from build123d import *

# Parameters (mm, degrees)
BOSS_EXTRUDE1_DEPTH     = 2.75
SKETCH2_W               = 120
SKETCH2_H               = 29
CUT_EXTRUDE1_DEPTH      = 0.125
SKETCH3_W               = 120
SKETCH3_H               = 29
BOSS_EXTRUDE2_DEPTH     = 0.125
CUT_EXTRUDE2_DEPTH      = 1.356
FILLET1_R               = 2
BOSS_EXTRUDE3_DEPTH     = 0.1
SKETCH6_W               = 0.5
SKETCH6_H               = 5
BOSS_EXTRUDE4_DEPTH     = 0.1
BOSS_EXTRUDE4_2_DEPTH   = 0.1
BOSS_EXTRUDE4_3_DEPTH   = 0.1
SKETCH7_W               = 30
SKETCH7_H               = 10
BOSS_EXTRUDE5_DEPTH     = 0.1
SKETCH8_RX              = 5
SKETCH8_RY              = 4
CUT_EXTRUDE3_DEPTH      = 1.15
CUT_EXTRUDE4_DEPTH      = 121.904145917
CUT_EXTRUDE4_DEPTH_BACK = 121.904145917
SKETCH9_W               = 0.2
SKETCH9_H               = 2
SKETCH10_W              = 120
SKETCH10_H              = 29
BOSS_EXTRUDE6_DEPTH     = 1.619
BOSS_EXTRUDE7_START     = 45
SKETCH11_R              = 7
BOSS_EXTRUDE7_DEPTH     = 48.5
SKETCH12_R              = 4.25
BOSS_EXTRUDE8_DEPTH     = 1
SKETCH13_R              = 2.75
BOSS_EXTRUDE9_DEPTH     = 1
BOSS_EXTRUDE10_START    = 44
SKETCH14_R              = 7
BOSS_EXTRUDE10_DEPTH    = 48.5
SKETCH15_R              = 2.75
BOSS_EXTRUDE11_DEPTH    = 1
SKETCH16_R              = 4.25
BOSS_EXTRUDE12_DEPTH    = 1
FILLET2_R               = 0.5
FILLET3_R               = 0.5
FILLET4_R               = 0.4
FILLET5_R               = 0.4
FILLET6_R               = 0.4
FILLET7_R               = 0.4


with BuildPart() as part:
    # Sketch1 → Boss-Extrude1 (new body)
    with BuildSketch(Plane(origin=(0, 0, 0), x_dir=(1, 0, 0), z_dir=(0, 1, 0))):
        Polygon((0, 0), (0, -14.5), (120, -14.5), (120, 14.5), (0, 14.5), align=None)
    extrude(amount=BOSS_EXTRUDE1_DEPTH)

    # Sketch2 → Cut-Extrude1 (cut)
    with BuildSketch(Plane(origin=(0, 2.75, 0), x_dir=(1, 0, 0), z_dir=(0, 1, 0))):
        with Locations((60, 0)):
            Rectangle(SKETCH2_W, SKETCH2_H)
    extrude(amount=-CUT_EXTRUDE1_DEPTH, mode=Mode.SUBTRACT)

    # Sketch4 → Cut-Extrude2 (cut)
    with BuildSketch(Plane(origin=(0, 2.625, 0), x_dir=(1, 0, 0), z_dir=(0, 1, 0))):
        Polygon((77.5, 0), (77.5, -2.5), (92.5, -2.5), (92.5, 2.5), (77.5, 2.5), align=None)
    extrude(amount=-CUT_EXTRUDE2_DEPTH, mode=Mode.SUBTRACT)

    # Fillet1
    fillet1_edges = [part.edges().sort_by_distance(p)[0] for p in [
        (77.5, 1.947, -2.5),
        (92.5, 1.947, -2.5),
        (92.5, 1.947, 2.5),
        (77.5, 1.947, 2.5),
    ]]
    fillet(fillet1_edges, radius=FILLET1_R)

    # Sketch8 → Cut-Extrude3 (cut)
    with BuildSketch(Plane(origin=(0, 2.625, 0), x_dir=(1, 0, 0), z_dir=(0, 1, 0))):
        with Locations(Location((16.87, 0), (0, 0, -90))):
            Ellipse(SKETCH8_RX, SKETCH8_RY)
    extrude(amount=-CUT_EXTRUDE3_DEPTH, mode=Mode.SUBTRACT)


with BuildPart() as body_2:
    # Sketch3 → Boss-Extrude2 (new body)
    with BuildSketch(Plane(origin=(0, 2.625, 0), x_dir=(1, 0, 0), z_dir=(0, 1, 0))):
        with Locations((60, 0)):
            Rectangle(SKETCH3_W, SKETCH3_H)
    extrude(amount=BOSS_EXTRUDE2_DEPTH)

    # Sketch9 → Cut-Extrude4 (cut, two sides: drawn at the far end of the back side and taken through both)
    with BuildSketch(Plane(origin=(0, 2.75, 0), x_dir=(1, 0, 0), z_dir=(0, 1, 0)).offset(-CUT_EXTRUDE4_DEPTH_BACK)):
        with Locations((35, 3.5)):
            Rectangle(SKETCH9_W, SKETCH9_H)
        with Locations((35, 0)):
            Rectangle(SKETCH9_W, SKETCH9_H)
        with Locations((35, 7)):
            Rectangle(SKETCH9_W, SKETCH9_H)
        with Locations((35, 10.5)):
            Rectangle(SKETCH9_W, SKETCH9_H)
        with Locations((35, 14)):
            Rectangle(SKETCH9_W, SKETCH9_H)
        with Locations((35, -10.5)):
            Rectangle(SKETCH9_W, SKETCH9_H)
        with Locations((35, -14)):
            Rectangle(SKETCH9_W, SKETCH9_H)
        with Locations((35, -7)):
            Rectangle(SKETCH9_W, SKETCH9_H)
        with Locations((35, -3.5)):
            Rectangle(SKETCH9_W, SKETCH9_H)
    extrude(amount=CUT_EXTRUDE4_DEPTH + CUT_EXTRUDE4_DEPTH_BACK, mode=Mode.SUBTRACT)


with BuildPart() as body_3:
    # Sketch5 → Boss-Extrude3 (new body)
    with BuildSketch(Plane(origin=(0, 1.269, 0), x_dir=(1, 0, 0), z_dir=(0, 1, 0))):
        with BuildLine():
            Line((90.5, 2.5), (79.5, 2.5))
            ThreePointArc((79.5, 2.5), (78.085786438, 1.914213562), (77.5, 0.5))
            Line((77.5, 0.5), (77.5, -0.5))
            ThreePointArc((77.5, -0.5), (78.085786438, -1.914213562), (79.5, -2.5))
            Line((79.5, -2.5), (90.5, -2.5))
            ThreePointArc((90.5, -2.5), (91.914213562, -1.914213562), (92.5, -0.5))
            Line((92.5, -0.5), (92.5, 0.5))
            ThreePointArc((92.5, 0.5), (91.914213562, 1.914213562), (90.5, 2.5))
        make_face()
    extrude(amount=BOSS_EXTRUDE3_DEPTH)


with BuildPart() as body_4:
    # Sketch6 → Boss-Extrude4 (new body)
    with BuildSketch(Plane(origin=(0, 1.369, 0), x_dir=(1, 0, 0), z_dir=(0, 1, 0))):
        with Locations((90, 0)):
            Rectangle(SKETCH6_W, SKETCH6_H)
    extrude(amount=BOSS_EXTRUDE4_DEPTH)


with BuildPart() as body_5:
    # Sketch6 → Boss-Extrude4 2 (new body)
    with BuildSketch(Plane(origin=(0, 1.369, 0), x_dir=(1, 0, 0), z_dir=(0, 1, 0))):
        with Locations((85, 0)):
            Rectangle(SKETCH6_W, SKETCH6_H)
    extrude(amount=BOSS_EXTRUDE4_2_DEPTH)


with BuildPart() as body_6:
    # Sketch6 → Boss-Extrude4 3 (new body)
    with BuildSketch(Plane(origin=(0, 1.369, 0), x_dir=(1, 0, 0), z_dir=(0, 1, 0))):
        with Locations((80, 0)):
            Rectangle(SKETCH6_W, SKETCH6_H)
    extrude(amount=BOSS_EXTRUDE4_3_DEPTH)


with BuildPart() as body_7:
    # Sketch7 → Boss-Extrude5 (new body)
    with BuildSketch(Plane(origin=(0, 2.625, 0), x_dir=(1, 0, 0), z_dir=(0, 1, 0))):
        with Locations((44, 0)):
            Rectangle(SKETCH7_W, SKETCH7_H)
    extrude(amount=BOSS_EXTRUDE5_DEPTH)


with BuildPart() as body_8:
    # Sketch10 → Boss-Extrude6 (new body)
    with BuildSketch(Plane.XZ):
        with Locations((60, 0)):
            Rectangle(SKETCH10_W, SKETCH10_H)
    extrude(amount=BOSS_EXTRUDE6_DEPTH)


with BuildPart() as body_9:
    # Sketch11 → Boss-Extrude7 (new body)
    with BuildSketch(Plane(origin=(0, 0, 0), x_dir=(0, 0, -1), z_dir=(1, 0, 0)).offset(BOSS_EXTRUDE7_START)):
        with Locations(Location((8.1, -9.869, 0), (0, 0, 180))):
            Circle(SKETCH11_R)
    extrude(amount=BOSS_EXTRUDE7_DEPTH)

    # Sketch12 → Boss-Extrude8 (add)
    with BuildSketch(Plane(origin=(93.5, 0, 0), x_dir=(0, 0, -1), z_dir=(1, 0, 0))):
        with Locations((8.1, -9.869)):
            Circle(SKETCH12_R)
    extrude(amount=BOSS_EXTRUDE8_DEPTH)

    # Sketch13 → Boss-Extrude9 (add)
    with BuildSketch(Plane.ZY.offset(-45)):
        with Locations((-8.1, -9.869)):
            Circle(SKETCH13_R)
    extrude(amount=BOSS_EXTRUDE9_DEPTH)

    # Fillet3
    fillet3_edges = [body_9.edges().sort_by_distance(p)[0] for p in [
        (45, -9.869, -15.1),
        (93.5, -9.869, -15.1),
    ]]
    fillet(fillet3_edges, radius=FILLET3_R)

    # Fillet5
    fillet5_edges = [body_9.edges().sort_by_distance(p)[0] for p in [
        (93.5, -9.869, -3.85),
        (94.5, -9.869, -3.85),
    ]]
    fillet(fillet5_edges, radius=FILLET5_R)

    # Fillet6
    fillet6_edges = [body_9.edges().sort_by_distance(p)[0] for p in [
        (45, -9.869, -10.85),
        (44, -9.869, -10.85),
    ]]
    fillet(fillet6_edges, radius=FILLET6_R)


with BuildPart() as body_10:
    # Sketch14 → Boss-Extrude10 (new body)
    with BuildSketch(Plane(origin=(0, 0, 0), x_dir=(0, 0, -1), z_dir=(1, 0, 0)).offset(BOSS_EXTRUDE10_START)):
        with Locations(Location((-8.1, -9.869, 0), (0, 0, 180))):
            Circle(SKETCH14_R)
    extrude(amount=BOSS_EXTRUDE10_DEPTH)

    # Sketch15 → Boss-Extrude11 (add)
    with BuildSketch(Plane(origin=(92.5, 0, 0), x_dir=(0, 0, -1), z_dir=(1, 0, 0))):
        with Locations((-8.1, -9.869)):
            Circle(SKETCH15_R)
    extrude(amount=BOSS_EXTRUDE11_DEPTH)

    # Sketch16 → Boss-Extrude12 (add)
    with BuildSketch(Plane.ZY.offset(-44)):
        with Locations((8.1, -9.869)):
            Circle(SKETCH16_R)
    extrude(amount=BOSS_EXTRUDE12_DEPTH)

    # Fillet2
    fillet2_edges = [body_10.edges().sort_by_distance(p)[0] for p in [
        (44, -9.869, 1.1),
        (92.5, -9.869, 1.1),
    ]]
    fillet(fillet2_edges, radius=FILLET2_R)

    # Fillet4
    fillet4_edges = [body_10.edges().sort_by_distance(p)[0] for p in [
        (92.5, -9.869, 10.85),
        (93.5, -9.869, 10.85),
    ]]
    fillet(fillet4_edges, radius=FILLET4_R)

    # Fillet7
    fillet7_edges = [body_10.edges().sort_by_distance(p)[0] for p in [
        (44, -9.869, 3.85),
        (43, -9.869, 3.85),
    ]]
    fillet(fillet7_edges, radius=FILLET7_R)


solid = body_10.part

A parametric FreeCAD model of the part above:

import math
import FreeCAD as App
import Part
import Sketcher
from FreeCAD import Vector
Q = App.Units.Quantity


def edges_at(feature, points):
    """Names of the edges that pass closest to the given points."""
    edges = feature.Shape.Edges
    near = lambda p: min(range(len(edges)), key=lambda i: edges[i].distToShape(Part.Vertex(*p))[0])
    return sorted({f"Edge{near(p) + 1}" for p in points})

doc = App.newDocument("Part")
body = doc.addObject("PartDesign::Body", "Body")

# Sketch on XZ plane
sketch1 = body.newObject("Sketcher::SketchObject", "Sketch")
sketch1.AttachmentSupport = (doc.getObject("XZ_Plane"), [""])
sketch1.MapMode = "FlatFace"
sketch1.addGeometry(Part.LineSegment(Vector(0, 14, 0), Vector(120, 14, 0)), False)
sketch1.addGeometry(Part.LineSegment(Vector(120, 14, 0), Vector(120, -14, 0)), False)
sketch1.addGeometry(Part.LineSegment(Vector(120, -14, 0), Vector(0, -14, 0)), False)
sketch1.addGeometry(Part.LineSegment(Vector(0, -14, 0), Vector(0, 14, 0)), False)
sketch1.addConstraint(Sketcher.Constraint("Coincident", 0, 2, 1, 1))
sketch1.addConstraint(Sketcher.Constraint("Coincident", 1, 2, 2, 1))
sketch1.addConstraint(Sketcher.Constraint("Coincident", 2, 2, 3, 1))
sketch1.addConstraint(Sketcher.Constraint("Coincident", 3, 2, 0, 1))
sketch1.addConstraint(Sketcher.Constraint("Horizontal", 0))
sketch1.addConstraint(Sketcher.Constraint("Vertical", 1))
sketch1.addConstraint(Sketcher.Constraint("Horizontal", 2))
sketch1.addConstraint(Sketcher.Constraint("Vertical", 3))
sketch1.addConstraint(Sketcher.Constraint("Symmetric", 2, 2, 3, 2, -1, 1))
sketch1.addConstraint(Sketcher.Constraint("DistanceX", 0, 1, 0, 2, Q("120 mm")))
sketch1.addConstraint(Sketcher.Constraint("DistanceY", 1, 2, 1, 1, Q("29 mm")))
pad1 = body.newObject("PartDesign::Pad", "Pad")
pad1.Profile = sketch1
pad1.Length = 2.75
pad1.Reversed = True

# Sketch on XZ plane
sketch2 = body.newObject("Sketcher::SketchObject", "Sketch001")
sketch2.AttachmentSupport = (doc.getObject("XZ_Plane"), [""])
sketch2.MapMode = "FlatFace"
sketch2.AttachmentOffset = App.Placement(Vector(0, 0, -2.75), App.Rotation())
sketch2.addGeometry(Part.LineSegment(Vector(0, -14, 0), Vector(0, 14, 0)), False)
sketch2.addGeometry(Part.LineSegment(Vector(0, 14, 0), Vector(120, 14, 0)), False)
sketch2.addGeometry(Part.LineSegment(Vector(120, 14, 0), Vector(120, -14, 0)), False)
sketch2.addGeometry(Part.LineSegment(Vector(120, -14, 0), Vector(0, -14, 0)), False)
sketch2.addConstraint(Sketcher.Constraint("Coincident", 0, 2, 1, 1))
sketch2.addConstraint(Sketcher.Constraint("Coincident", 1, 2, 2, 1))
sketch2.addConstraint(Sketcher.Constraint("Coincident", 2, 2, 3, 1))
sketch2.addConstraint(Sketcher.Constraint("Coincident", 3, 2, 0, 1))
sketch2.addConstraint(Sketcher.Constraint("Vertical", 0))
sketch2.addConstraint(Sketcher.Constraint("Horizontal", 1))
sketch2.addConstraint(Sketcher.Constraint("Vertical", 2))
sketch2.addConstraint(Sketcher.Constraint("Horizontal", 3))
sketch2.addConstraint(Sketcher.Constraint("Symmetric", 0, 2, 3, 2, -1, 1))
sketch2.addConstraint(Sketcher.Constraint("DistanceX", 1, 1, 1, 2, Q("120 mm")))
sketch2.addConstraint(Sketcher.Constraint("DistanceY", 0, 1, 0, 2, Q("29 mm")))
pocket1 = body.newObject("PartDesign::Pocket", "Pocket")
pocket1.Profile = sketch2
pocket1.Length = 0.125
pocket1.Reversed = True

# Sketch on XZ plane
sketch3 = body.newObject("Sketcher::SketchObject", "Sketch002")
sketch3.AttachmentSupport = (doc.getObject("XZ_Plane"), [""])
sketch3.MapMode = "FlatFace"
sketch3.AttachmentOffset = App.Placement(Vector(0, 0, -2.625), App.Rotation())
sketch3.addGeometry(Part.LineSegment(Vector(78, 2, 0), Vector(92, 2, 0)), False)
sketch3.addGeometry(Part.LineSegment(Vector(92, 2, 0), Vector(92, -2, 0)), False)
sketch3.addGeometry(Part.LineSegment(Vector(92, -2, 0), Vector(78, -2, 0)), False)
sketch3.addGeometry(Part.LineSegment(Vector(78, -2, 0), Vector(78, 2, 0)), False)
sketch3.addConstraint(Sketcher.Constraint("Coincident", 0, 2, 1, 1))
sketch3.addConstraint(Sketcher.Constraint("Coincident", 1, 2, 2, 1))
sketch3.addConstraint(Sketcher.Constraint("Coincident", 2, 2, 3, 1))
sketch3.addConstraint(Sketcher.Constraint("Coincident", 3, 2, 0, 1))
sketch3.addConstraint(Sketcher.Constraint("Horizontal", 0))
sketch3.addConstraint(Sketcher.Constraint("Vertical", 1))
sketch3.addConstraint(Sketcher.Constraint("Horizontal", 2))
sketch3.addConstraint(Sketcher.Constraint("Vertical", 3))
sketch3.addConstraint(Sketcher.Constraint("DistanceX", 0, 1, 0, 2, Q("15 mm")))
sketch3.addConstraint(Sketcher.Constraint("DistanceY", 1, 2, 1, 1, Q("5 mm")))
sketch3.addConstraint(Sketcher.Constraint("DistanceX", -1, 1, 0, 2, Q("92.5 mm")))
sketch3.addConstraint(Sketcher.Constraint("DistanceY", -1, 1, 0, 2, Q("2.5 mm")))
pocket2 = body.newObject("PartDesign::Pocket", "Pocket001")
pocket2.Profile = sketch3
pocket2.Length = 1.356
pocket2.Reversed = True
doc.recompute()

fillet = body.newObject("PartDesign::Fillet", "Fillet")
fillet.Base = (pocket2, edges_at(pocket2, [
    (77.5, 1.947, -2.5),
    (92.5, 1.947, -2.5),
    (92.5, 1.947, 2.5),
    (77.5, 1.947, 2.5),
]))
fillet.Radius = 2

# Sketch on XZ plane
sketch4 = body.newObject("Sketcher::SketchObject", "Sketch003")
sketch4.AttachmentSupport = (doc.getObject("XZ_Plane"), [""])
sketch4.MapMode = "FlatFace"
sketch4.AttachmentOffset = App.Placement(Vector(0, 0, -2.625), App.Rotation())
sketch4.addGeometry(Part.Ellipse(Vector(16.87, 5, 0), Vector(12.87, 0, 0), Vector(16.87, 0, 0)), False)
sketch4.addConstraint(Sketcher.Constraint("Block", 0))
pocket3 = body.newObject("PartDesign::Pocket", "Pocket002")
pocket3.Profile = sketch4
pocket3.Length = 1.15
pocket3.Reversed = True
body2 = doc.addObject("PartDesign::Body", "Body001")

# Sketch on XZ plane
sketch5 = body2.newObject("Sketcher::SketchObject", "Sketch004")
sketch5.AttachmentSupport = (doc.getObject("XZ_Plane001"), [""])
sketch5.MapMode = "FlatFace"
sketch5.AttachmentOffset = App.Placement(Vector(0, 0, -2.625), App.Rotation())
sketch5.addGeometry(Part.LineSegment(Vector(0, -14, 0), Vector(0, 14, 0)), False)
sketch5.addGeometry(Part.LineSegment(Vector(0, 14, 0), Vector(120, 14, 0)), False)
sketch5.addGeometry(Part.LineSegment(Vector(120, 14, 0), Vector(120, -14, 0)), False)
sketch5.addGeometry(Part.LineSegment(Vector(120, -14, 0), Vector(0, -14, 0)), False)
sketch5.addConstraint(Sketcher.Constraint("Coincident", 0, 2, 1, 1))
sketch5.addConstraint(Sketcher.Constraint("Coincident", 1, 2, 2, 1))
sketch5.addConstraint(Sketcher.Constraint("Coincident", 2, 2, 3, 1))
sketch5.addConstraint(Sketcher.Constraint("Coincident", 3, 2, 0, 1))
sketch5.addConstraint(Sketcher.Constraint("Vertical", 0))
sketch5.addConstraint(Sketcher.Constraint("Horizontal", 1))
sketch5.addConstraint(Sketcher.Constraint("Vertical", 2))
sketch5.addConstraint(Sketcher.Constraint("Horizontal", 3))
sketch5.addConstraint(Sketcher.Constraint("Symmetric", 0, 2, 3, 2, -1, 1))
sketch5.addConstraint(Sketcher.Constraint("DistanceX", 1, 1, 1, 2, Q("120 mm")))
sketch5.addConstraint(Sketcher.Constraint("DistanceY", 0, 1, 0, 2, Q("29 mm")))
pad2 = body2.newObject("PartDesign::Pad", "Pad001")
pad2.Profile = sketch5
pad2.Length = 0.125
pad2.Reversed = True

# Sketch on XZ plane
sketch6 = body2.newObject("Sketcher::SketchObject", "Sketch005")
sketch6.AttachmentSupport = (doc.getObject("XZ_Plane001"), [""])
sketch6.MapMode = "FlatFace"
sketch6.AttachmentOffset = App.Placement(Vector(0, 0, -2.75), App.Rotation())
sketch6.addGeometry(Part.LineSegment(Vector(34.9, -4.5, 0), Vector(34.9, -2.5, 0)), False)
sketch6.addGeometry(Part.LineSegment(Vector(34.9, -2.5, 0), Vector(35.1, -2.5, 0)), False)
sketch6.addGeometry(Part.LineSegment(Vector(35.1, -2.5, 0), Vector(35.1, -4.5, 0)), False)
sketch6.addGeometry(Part.LineSegment(Vector(35.1, -4.5, 0), Vector(34.9, -4.5, 0)), False)
sketch6.addGeometry(Part.LineSegment(Vector(34.9, -1, 0), Vector(34.9, 1, 0)), False)
sketch6.addGeometry(Part.LineSegment(Vector(34.9, 1, 0), Vector(35.1, 1, 0)), False)
sketch6.addGeometry(Part.LineSegment(Vector(35.1, 1, 0), Vector(35.1, -1, 0)), False)
sketch6.addGeometry(Part.LineSegment(Vector(35.1, -1, 0), Vector(34.9, -1, 0)), False)
sketch6.addGeometry(Part.LineSegment(Vector(34.9, -8, 0), Vector(34.9, -6, 0)), False)
sketch6.addGeometry(Part.LineSegment(Vector(34.9, -6, 0), Vector(35.1, -6, 0)), False)
sketch6.addGeometry(Part.LineSegment(Vector(35.1, -6, 0), Vector(35.1, -8, 0)), False)
sketch6.addGeometry(Part.LineSegment(Vector(35.1, -8, 0), Vector(34.9, -8, 0)), False)
sketch6.addGeometry(Part.LineSegment(Vector(34.9, -11.5, 0), Vector(34.9, -9.5, 0)), False)
sketch6.addGeometry(Part.LineSegment(Vector(34.9, -9.5, 0), Vector(35.1, -9.5, 0)), False)
sketch6.addGeometry(Part.LineSegment(Vector(35.1, -9.5, 0), Vector(35.1, -11.5, 0)), False)
sketch6.addGeometry(Part.LineSegment(Vector(35.1, -11.5, 0), Vector(34.9, -11.5, 0)), False)
sketch6.addGeometry(Part.LineSegment(Vector(34.9, -15, 0), Vector(34.9, -13, 0)), False)
sketch6.addGeometry(Part.LineSegment(Vector(34.9, -13, 0), Vector(35.1, -13, 0)), False)
sketch6.addGeometry(Part.LineSegment(Vector(35.1, -13, 0), Vector(35.1, -15, 0)), False)
sketch6.addGeometry(Part.LineSegment(Vector(35.1, -15, 0), Vector(34.9, -15, 0)), False)
sketch6.addGeometry(Part.LineSegment(Vector(34.9, 9.5, 0), Vector(34.9, 11.5, 0)), False)
sketch6.addGeometry(Part.LineSegment(Vector(34.9, 11.5, 0), Vector(35.1, 11.5, 0)), False)
sketch6.addGeometry(Part.LineSegment(Vector(35.1, 11.5, 0), Vector(35.1, 9.5, 0)), False)
sketch6.addGeometry(Part.LineSegment(Vector(35.1, 9.5, 0), Vector(34.9, 9.5, 0)), False)
sketch6.addGeometry(Part.LineSegment(Vector(34.9, 13, 0), Vector(34.9, 15, 0)), False)
sketch6.addGeometry(Part.LineSegment(Vector(34.9, 15, 0), Vector(35.1, 15, 0)), False)
sketch6.addGeometry(Part.LineSegment(Vector(35.1, 15, 0), Vector(35.1, 13, 0)), False)
sketch6.addGeometry(Part.LineSegment(Vector(35.1, 13, 0), Vector(34.9, 13, 0)), False)
sketch6.addGeometry(Part.LineSegment(Vector(34.9, 6, 0), Vector(34.9, 8, 0)), False)
sketch6.addGeometry(Part.LineSegment(Vector(34.9, 8, 0), Vector(35.1, 8, 0)), False)
sketch6.addGeometry(Part.LineSegment(Vector(35.1, 8, 0), Vector(35.1, 6, 0)), False)
sketch6.addGeometry(Part.LineSegment(Vector(35.1, 6, 0), Vector(34.9, 6, 0)), False)
sketch6.addGeometry(Part.LineSegment(Vector(34.9, 2.5, 0), Vector(34.9, 4.5, 0)), False)
sketch6.addGeometry(Part.LineSegment(Vector(34.9, 4.5, 0), Vector(35.1, 4.5, 0)), False)
sketch6.addGeometry(Part.LineSegment(Vector(35.1, 4.5, 0), Vector(35.1, 2.5, 0)), False)
sketch6.addGeometry(Part.LineSegment(Vector(35.1, 2.5, 0), Vector(34.9, 2.5, 0)), False)
sketch6.addConstraint(Sketcher.Constraint("Coincident", 0, 2, 1, 1))
sketch6.addConstraint(Sketcher.Constraint("Coincident", 1, 2, 2, 1))
sketch6.addConstraint(Sketcher.Constraint("Coincident", 2, 2, 3, 1))
sketch6.addConstraint(Sketcher.Constraint("Coincident", 3, 2, 0, 1))
sketch6.addConstraint(Sketcher.Constraint("Coincident", 4, 2, 5, 1))
sketch6.addConstraint(Sketcher.Constraint("Coincident", 5, 2, 6, 1))
sketch6.addConstraint(Sketcher.Constraint("Coincident", 6, 2, 7, 1))
sketch6.addConstraint(Sketcher.Constraint("Coincident", 7, 2, 4, 1))
sketch6.addConstraint(Sketcher.Constraint("Coincident", 8, 2, 9, 1))
sketch6.addConstraint(Sketcher.Constraint("Coincident", 9, 2, 10, 1))
sketch6.addConstraint(Sketcher.Constraint("Coincident", 10, 2, 11, 1))
sketch6.addConstraint(Sketcher.Constraint("Coincident", 11, 2, 8, 1))
sketch6.addConstraint(Sketcher.Constraint("Coincident", 12, 2, 13, 1))
sketch6.addConstraint(Sketcher.Constraint("Coincident", 13, 2, 14, 1))
sketch6.addConstraint(Sketcher.Constraint("Coincident", 14, 2, 15, 1))
sketch6.addConstraint(Sketcher.Constraint("Coincident", 15, 2, 12, 1))
sketch6.addConstraint(Sketcher.Constraint("Coincident", 16, 2, 17, 1))
sketch6.addConstraint(Sketcher.Constraint("Coincident", 17, 2, 18, 1))
sketch6.addConstraint(Sketcher.Constraint("Coincident", 18, 2, 19, 1))
sketch6.addConstraint(Sketcher.Constraint("Coincident", 19, 2, 16, 1))
sketch6.addConstraint(Sketcher.Constraint("Coincident", 20, 2, 21, 1))
sketch6.addConstraint(Sketcher.Constraint("Coincident", 21, 2, 22, 1))
sketch6.addConstraint(Sketcher.Constraint("Coincident", 22, 2, 23, 1))
sketch6.addConstraint(Sketcher.Constraint("Coincident", 23, 2, 20, 1))
sketch6.addConstraint(Sketcher.Constraint("Coincident", 24, 2, 25, 1))
sketch6.addConstraint(Sketcher.Constraint("Coincident", 25, 2, 26, 1))
sketch6.addConstraint(Sketcher.Constraint("Coincident", 26, 2, 27, 1))
sketch6.addConstraint(Sketcher.Constraint("Coincident", 27, 2, 24, 1))
sketch6.addConstraint(Sketcher.Constraint("Coincident", 28, 2, 29, 1))
sketch6.addConstraint(Sketcher.Constraint("Coincident", 29, 2, 30, 1))
sketch6.addConstraint(Sketcher.Constraint("Coincident", 30, 2, 31, 1))
sketch6.addConstraint(Sketcher.Constraint("Coincident", 31, 2, 28, 1))
sketch6.addConstraint(Sketcher.Constraint("Coincident", 32, 2, 33, 1))
sketch6.addConstraint(Sketcher.Constraint("Coincident", 33, 2, 34, 1))
sketch6.addConstraint(Sketcher.Constraint("Coincident", 34, 2, 35, 1))
sketch6.addConstraint(Sketcher.Constraint("Coincident", 35, 2, 32, 1))
sketch6.addConstraint(Sketcher.Constraint("Vertical", 0))
sketch6.addConstraint(Sketcher.Constraint("Horizontal", 1))
sketch6.addConstraint(Sketcher.Constraint("Vertical", 2))
sketch6.addConstraint(Sketcher.Constraint("Horizontal", 3))
sketch6.addConstraint(Sketcher.Constraint("Vertical", 4))
sketch6.addConstraint(Sketcher.Constraint("Horizontal", 5))
sketch6.addConstraint(Sketcher.Constraint("Vertical", 6))
sketch6.addConstraint(Sketcher.Constraint("Horizontal", 7))
sketch6.addConstraint(Sketcher.Constraint("Vertical", 8))
sketch6.addConstraint(Sketcher.Constraint("Horizontal", 9))
sketch6.addConstraint(Sketcher.Constraint("Vertical", 10))
sketch6.addConstraint(Sketcher.Constraint("Horizontal", 11))
sketch6.addConstraint(Sketcher.Constraint("Vertical", 12))
sketch6.addConstraint(Sketcher.Constraint("Horizontal", 13))
sketch6.addConstraint(Sketcher.Constraint("Vertical", 14))
sketch6.addConstraint(Sketcher.Constraint("Horizontal", 15))
sketch6.addConstraint(Sketcher.Constraint("Vertical", 16))
sketch6.addConstraint(Sketcher.Constraint("Horizontal", 17))
sketch6.addConstraint(Sketcher.Constraint("Vertical", 18))
sketch6.addConstraint(Sketcher.Constraint("Horizontal", 19))
sketch6.addConstraint(Sketcher.Constraint("Vertical", 20))
sketch6.addConstraint(Sketcher.Constraint("Horizontal", 21))
sketch6.addConstraint(Sketcher.Constraint("Vertical", 22))
sketch6.addConstraint(Sketcher.Constraint("Horizontal", 23))
sketch6.addConstraint(Sketcher.Constraint("Vertical", 24))
sketch6.addConstraint(Sketcher.Constraint("Horizontal", 25))
sketch6.addConstraint(Sketcher.Constraint("Vertical", 26))
sketch6.addConstraint(Sketcher.Constraint("Horizontal", 27))
sketch6.addConstraint(Sketcher.Constraint("Vertical", 28))
sketch6.addConstraint(Sketcher.Constraint("Horizontal", 29))
sketch6.addConstraint(Sketcher.Constraint("Vertical", 30))
sketch6.addConstraint(Sketcher.Constraint("Horizontal", 31))
sketch6.addConstraint(Sketcher.Constraint("Vertical", 32))
sketch6.addConstraint(Sketcher.Constraint("Horizontal", 33))
sketch6.addConstraint(Sketcher.Constraint("Vertical", 34))
sketch6.addConstraint(Sketcher.Constraint("Horizontal", 35))
sketch6.addConstraint(Sketcher.Constraint("Symmetric", 15, 2, 20, 2, -1))
sketch6.addConstraint(Sketcher.Constraint("Symmetric", 13, 2, 22, 2, -1))
sketch6.addConstraint(Sketcher.Constraint("Symmetric", 19, 2, 24, 2, -1))
sketch6.addConstraint(Sketcher.Constraint("Symmetric", 17, 2, 26, 2, -1))
sketch6.addConstraint(Sketcher.Constraint("Symmetric", 11, 2, 28, 2, -1))
sketch6.addConstraint(Sketcher.Constraint("Symmetric", 9, 2, 30, 2, -1))
sketch6.addConstraint(Sketcher.Constraint("Symmetric", 3, 2, 32, 2, -1))
sketch6.addConstraint(Sketcher.Constraint("Symmetric", 1, 2, 34, 2, -1))
sketch6.addConstraint(Sketcher.Constraint("Vertical", 3, 2, 4, 2))
sketch6.addConstraint(Sketcher.Constraint("Vertical", 2, 2, 5, 2))
sketch6.addConstraint(Sketcher.Constraint("Vertical", 7, 2, 8, 2))
sketch6.addConstraint(Sketcher.Constraint("Vertical", 6, 2, 9, 2))
sketch6.addConstraint(Sketcher.Constraint("Vertical", 11, 2, 12, 2))
sketch6.addConstraint(Sketcher.Constraint("Vertical", 10, 2, 13, 2))
sketch6.addConstraint(Sketcher.Constraint("Vertical", 15, 2, 16, 2))
sketch6.addConstraint(Sketcher.Constraint("Vertical", 14, 2, 17, 2))
sketch6.addConstraint(Sketcher.Constraint("Equal", 2, 4))
sketch6.addConstraint(Sketcher.Constraint("Equal", 6, 8))
sketch6.addConstraint(Sketcher.Constraint("Equal", 10, 12))
sketch6.addConstraint(Sketcher.Constraint("Equal", 14, 16))
sketch6.addConstraint(Sketcher.Constraint("DistanceY", 0, 1, 0, 2, Q("2 mm")))
sketch6.addConstraint(Sketcher.Constraint("DistanceX", 1, 1, 1, 2, Q("0.2 mm")))
sketch6.addConstraint(Sketcher.Constraint("DistanceY", -1, 1, 4, 2, Q("1 mm")))
sketch6.addConstraint(Sketcher.Constraint("DistanceY", 8, 2, -1, 1, Q("6 mm")))
sketch6.addConstraint(Sketcher.Constraint("DistanceY", 16, 2, -1, 1, Q("13 mm")))
sketch6.addConstraint(Sketcher.Constraint("DistanceY", 12, 2, 3, 2, Q("5 mm")))
sketch6.addConstraint(Sketcher.Constraint("DistanceY", 0, 2, 20, 2, Q("14 mm")))
sketch6.addConstraint(Sketcher.Constraint("DistanceX", -1, 1, 0, 2, Q("34.9 mm")))
pocket4 = body2.newObject("PartDesign::Pocket", "Pocket003")
pocket4.Profile = sketch6
pocket4.Type = "ThroughAll"
pocket4.Midplane = True
body3 = doc.addObject("PartDesign::Body", "Body002")

# Sketch on XZ plane
sketch7 = body3.newObject("Sketcher::SketchObject", "Sketch006")
sketch7.AttachmentSupport = (doc.getObject("XZ_Plane002"), [""])
sketch7.MapMode = "FlatFace"
sketch7.AttachmentOffset = App.Placement(Vector(0, 0, -1.269), App.Rotation())
sketch7.addGeometry(Part.LineSegment(Vector(90.5, -2.5, 0), Vector(79.5, -2.5, 0)), False)
sketch7.addGeometry(Part.ArcOfCircle(Part.Circle(Vector(79.5, -0.5, 0), Vector(0, 0, 1), 2), math.radians(-180), math.radians(-90)), False)
sketch7.addGeometry(Part.LineSegment(Vector(77.5, -0.5, 0), Vector(77.5, 0.5, 0)), False)
sketch7.addGeometry(Part.ArcOfCircle(Part.Circle(Vector(79.5, 0.5, 0), Vector(0, 0, 1), 2), math.radians(90), math.radians(180)), False)
sketch7.addGeometry(Part.LineSegment(Vector(79.5, 2.5, 0), Vector(90.5, 2.5, 0)), False)
sketch7.addGeometry(Part.ArcOfCircle(Part.Circle(Vector(90.5, 0.5, 0), Vector(0, 0, 1), 2), math.radians(0), math.radians(90)), False)
sketch7.addGeometry(Part.LineSegment(Vector(92.5, 0.5, 0), Vector(92.5, -0.5, 0)), False)
sketch7.addGeometry(Part.ArcOfCircle(Part.Circle(Vector(90.5, -0.5, 0), Vector(0, 0, 1), 2), math.radians(-90), math.radians(0)), False)
sketch7.addConstraint(Sketcher.Constraint("Tangent", 0, 2, 1, 2))
sketch7.addConstraint(Sketcher.Constraint("Tangent", 1, 1, 2, 1))
sketch7.addConstraint(Sketcher.Constraint("Tangent", 2, 2, 3, 2))
sketch7.addConstraint(Sketcher.Constraint("Tangent", 3, 1, 4, 1))
sketch7.addConstraint(Sketcher.Constraint("Tangent", 4, 2, 5, 2))
sketch7.addConstraint(Sketcher.Constraint("Tangent", 5, 1, 6, 1))
sketch7.addConstraint(Sketcher.Constraint("Tangent", 6, 2, 7, 2))
sketch7.addConstraint(Sketcher.Constraint("Tangent", 7, 1, 0, 1))
sketch7.addConstraint(Sketcher.Constraint("Horizontal", 0))
sketch7.addConstraint(Sketcher.Constraint("Vertical", 2))
sketch7.addConstraint(Sketcher.Constraint("Horizontal", 4))
sketch7.addConstraint(Sketcher.Constraint("Vertical", 6))
sketch7.addConstraint(Sketcher.Constraint("Equal", 1, 3))
sketch7.addConstraint(Sketcher.Constraint("Equal", 3, 5))
sketch7.addConstraint(Sketcher.Constraint("Equal", 5, 7))
sketch7.addConstraint(Sketcher.Constraint("Radius", 1, Q("2 mm")))
sketch7.addConstraint(Sketcher.Constraint("DistanceX", 0, 2, 0, 1, Q("11 mm")))
sketch7.addConstraint(Sketcher.Constraint("DistanceY", 2, 1, 2, 2, Q("1 mm")))
sketch7.addConstraint(Sketcher.Constraint("DistanceX", -1, 1, 1, 3, Q("79.5 mm")))
sketch7.addConstraint(Sketcher.Constraint("DistanceY", 1, 3, -1, 1, Q("0.5 mm")))
pad3 = body3.newObject("PartDesign::Pad", "Pad002")
pad3.Profile = sketch7
pad3.Length = 0.1
pad3.Reversed = True
body4 = doc.addObject("PartDesign::Body", "Body003")

# Sketch on XZ plane
sketch8 = body4.newObject("Sketcher::SketchObject", "Sketch007")
sketch8.AttachmentSupport = (doc.getObject("XZ_Plane003"), [""])
sketch8.MapMode = "FlatFace"
sketch8.AttachmentOffset = App.Placement(Vector(0, 0, -1.369), App.Rotation())
sketch8.addGeometry(Part.LineSegment(Vector(89.8, -2.5, 0), Vector(89.8, 2.5, 0)), False)
sketch8.addGeometry(Part.LineSegment(Vector(89.8, 2.5, 0), Vector(90.2, 2.5, 0)), False)
sketch8.addGeometry(Part.LineSegment(Vector(90.2, 2.5, 0), Vector(90.2, -2.5, 0)), False)
sketch8.addGeometry(Part.LineSegment(Vector(90.2, -2.5, 0), Vector(89.8, -2.5, 0)), False)
sketch8.addConstraint(Sketcher.Constraint("Coincident", 0, 2, 1, 1))
sketch8.addConstraint(Sketcher.Constraint("Coincident", 1, 2, 2, 1))
sketch8.addConstraint(Sketcher.Constraint("Coincident", 2, 2, 3, 1))
sketch8.addConstraint(Sketcher.Constraint("Coincident", 3, 2, 0, 1))
sketch8.addConstraint(Sketcher.Constraint("Vertical", 0))
sketch8.addConstraint(Sketcher.Constraint("Horizontal", 1))
sketch8.addConstraint(Sketcher.Constraint("Vertical", 2))
sketch8.addConstraint(Sketcher.Constraint("Horizontal", 3))
sketch8.addConstraint(Sketcher.Constraint("DistanceY", 0, 1, 0, 2, Q("5 mm")))
sketch8.addConstraint(Sketcher.Constraint("DistanceX", 1, 1, 1, 2, Q("0.5 mm")))
sketch8.addConstraint(Sketcher.Constraint("DistanceY", -1, 1, 0, 2, Q("2.5 mm")))
sketch8.addConstraint(Sketcher.Constraint("DistanceX", -1, 1, 0, 2, Q("89.75 mm")))
pad4 = body4.newObject("PartDesign::Pad", "Pad003")
pad4.Profile = sketch8
pad4.Length = 0.1
pad4.Reversed = True
body5 = doc.addObject("PartDesign::Body", "Body004")

# Sketch on XZ plane
sketch9 = body5.newObject("Sketcher::SketchObject", "Sketch008")
sketch9.AttachmentSupport = (doc.getObject("XZ_Plane004"), [""])
sketch9.MapMode = "FlatFace"
sketch9.AttachmentOffset = App.Placement(Vector(0, 0, -1.369), App.Rotation())
sketch9.addGeometry(Part.LineSegment(Vector(84.8, -2.5, 0), Vector(84.8, 2.5, 0)), False)
sketch9.addGeometry(Part.LineSegment(Vector(84.8, 2.5, 0), Vector(85.2, 2.5, 0)), False)
sketch9.addGeometry(Part.LineSegment(Vector(85.2, 2.5, 0), Vector(85.2, -2.5, 0)), False)
sketch9.addGeometry(Part.LineSegment(Vector(85.2, -2.5, 0), Vector(84.8, -2.5, 0)), False)
sketch9.addConstraint(Sketcher.Constraint("Coincident", 0, 2, 1, 1))
sketch9.addConstraint(Sketcher.Constraint("Coincident", 1, 2, 2, 1))
sketch9.addConstraint(Sketcher.Constraint("Coincident", 2, 2, 3, 1))
sketch9.addConstraint(Sketcher.Constraint("Coincident", 3, 2, 0, 1))
sketch9.addConstraint(Sketcher.Constraint("Vertical", 0))
sketch9.addConstraint(Sketcher.Constraint("Horizontal", 1))
sketch9.addConstraint(Sketcher.Constraint("Vertical", 2))
sketch9.addConstraint(Sketcher.Constraint("Horizontal", 3))
sketch9.addConstraint(Sketcher.Constraint("DistanceY", 0, 1, 0, 2, Q("5 mm")))
sketch9.addConstraint(Sketcher.Constraint("DistanceX", 1, 1, 1, 2, Q("0.5 mm")))
sketch9.addConstraint(Sketcher.Constraint("DistanceY", -1, 1, 0, 2, Q("2.5 mm")))
sketch9.addConstraint(Sketcher.Constraint("DistanceX", -1, 1, 0, 2, Q("84.75 mm")))
pad5 = body5.newObject("PartDesign::Pad", "Pad004")
pad5.Profile = sketch9
pad5.Length = 0.1
pad5.Reversed = True
body6 = doc.addObject("PartDesign::Body", "Body005")

# Sketch on XZ plane
sketch10 = body6.newObject("Sketcher::SketchObject", "Sketch009")
sketch10.AttachmentSupport = (doc.getObject("XZ_Plane005"), [""])
sketch10.MapMode = "FlatFace"
sketch10.AttachmentOffset = App.Placement(Vector(0, 0, -1.369), App.Rotation())
sketch10.addGeometry(Part.LineSegment(Vector(79.8, -2.5, 0), Vector(79.8, 2.5, 0)), False)
sketch10.addGeometry(Part.LineSegment(Vector(79.8, 2.5, 0), Vector(80.2, 2.5, 0)), False)
sketch10.addGeometry(Part.LineSegment(Vector(80.2, 2.5, 0), Vector(80.2, -2.5, 0)), False)
sketch10.addGeometry(Part.LineSegment(Vector(80.2, -2.5, 0), Vector(79.8, -2.5, 0)), False)
sketch10.addConstraint(Sketcher.Constraint("Coincident", 0, 2, 1, 1))
sketch10.addConstraint(Sketcher.Constraint("Coincident", 1, 2, 2, 1))
sketch10.addConstraint(Sketcher.Constraint("Coincident", 2, 2, 3, 1))
sketch10.addConstraint(Sketcher.Constraint("Coincident", 3, 2, 0, 1))
sketch10.addConstraint(Sketcher.Constraint("Vertical", 0))
sketch10.addConstraint(Sketcher.Constraint("Horizontal", 1))
sketch10.addConstraint(Sketcher.Constraint("Vertical", 2))
sketch10.addConstraint(Sketcher.Constraint("Horizontal", 3))
sketch10.addConstraint(Sketcher.Constraint("DistanceY", 0, 1, 0, 2, Q("5 mm")))
sketch10.addConstraint(Sketcher.Constraint("DistanceX", 1, 1, 1, 2, Q("0.5 mm")))
sketch10.addConstraint(Sketcher.Constraint("DistanceY", -1, 1, 0, 2, Q("2.5 mm")))
sketch10.addConstraint(Sketcher.Constraint("DistanceX", -1, 1, 0, 2, Q("79.75 mm")))
pad6 = body6.newObject("PartDesign::Pad", "Pad005")
pad6.Profile = sketch10
pad6.Length = 0.1
pad6.Reversed = True
body7 = doc.addObject("PartDesign::Body", "Body006")

# Sketch on XZ plane
sketch11 = body7.newObject("Sketcher::SketchObject", "Sketch010")
sketch11.AttachmentSupport = (doc.getObject("XZ_Plane006"), [""])
sketch11.MapMode = "FlatFace"
sketch11.AttachmentOffset = App.Placement(Vector(0, 0, -2.625), App.Rotation())
sketch11.addGeometry(Part.LineSegment(Vector(29, -5, 0), Vector(29, 5, 0)), False)
sketch11.addGeometry(Part.LineSegment(Vector(29, 5, 0), Vector(59, 5, 0)), False)
sketch11.addGeometry(Part.LineSegment(Vector(59, 5, 0), Vector(59, -5, 0)), False)
sketch11.addGeometry(Part.LineSegment(Vector(59, -5, 0), Vector(29, -5, 0)), False)
sketch11.addConstraint(Sketcher.Constraint("Coincident", 0, 2, 1, 1))
sketch11.addConstraint(Sketcher.Constraint("Coincident", 1, 2, 2, 1))
sketch11.addConstraint(Sketcher.Constraint("Coincident", 2, 2, 3, 1))
sketch11.addConstraint(Sketcher.Constraint("Coincident", 3, 2, 0, 1))
sketch11.addConstraint(Sketcher.Constraint("Vertical", 0))
sketch11.addConstraint(Sketcher.Constraint("Horizontal", 1))
sketch11.addConstraint(Sketcher.Constraint("Vertical", 2))
sketch11.addConstraint(Sketcher.Constraint("Horizontal", 3))
sketch11.addConstraint(Sketcher.Constraint("DistanceX", 1, 1, 1, 2, Q("30 mm")))
sketch11.addConstraint(Sketcher.Constraint("DistanceY", 0, 1, 0, 2, Q("10 mm")))
sketch11.addConstraint(Sketcher.Constraint("DistanceX", -1, 1, 0, 2, Q("29 mm")))
sketch11.addConstraint(Sketcher.Constraint("DistanceY", -1, 1, 0, 2, Q("5 mm")))
pad7 = body7.newObject("PartDesign::Pad", "Pad006")
pad7.Profile = sketch11
pad7.Length = 0.1
pad7.Reversed = True
body8 = doc.addObject("PartDesign::Body", "Body007")

# Sketch on XZ plane
sketch12 = body8.newObject("Sketcher::SketchObject", "Sketch011")
sketch12.AttachmentSupport = (doc.getObject("XZ_Plane007"), [""])
sketch12.MapMode = "FlatFace"
sketch12.addGeometry(Part.LineSegment(Vector(0, 14, 0), Vector(0, -14, 0)), False)
sketch12.addGeometry(Part.LineSegment(Vector(0, -14, 0), Vector(120, -14, 0)), False)
sketch12.addGeometry(Part.LineSegment(Vector(120, -14, 0), Vector(120, 14, 0)), False)
sketch12.addGeometry(Part.LineSegment(Vector(120, 14, 0), Vector(0, 14, 0)), False)
sketch12.addConstraint(Sketcher.Constraint("Coincident", 0, 2, 1, 1))
sketch12.addConstraint(Sketcher.Constraint("Coincident", 1, 2, 2, 1))
sketch12.addConstraint(Sketcher.Constraint("Coincident", 2, 2, 3, 1))
sketch12.addConstraint(Sketcher.Constraint("Coincident", 3, 2, 0, 1))
sketch12.addConstraint(Sketcher.Constraint("Vertical", 0))
sketch12.addConstraint(Sketcher.Constraint("Horizontal", 1))
sketch12.addConstraint(Sketcher.Constraint("Vertical", 2))
sketch12.addConstraint(Sketcher.Constraint("Horizontal", 3))
sketch12.addConstraint(Sketcher.Constraint("Symmetric", 0, 2, 3, 2, -1, 1))
sketch12.addConstraint(Sketcher.Constraint("DistanceX", 1, 1, 1, 2, Q("120 mm")))
sketch12.addConstraint(Sketcher.Constraint("DistanceY", 0, 2, 0, 1, Q("29 mm")))
pad8 = body8.newObject("PartDesign::Pad", "Pad007")
pad8.Profile = sketch12
pad8.Length = 1.619
body9 = doc.addObject("PartDesign::Body", "Body008")

# Sketch on YZ plane
sketch13 = body9.newObject("Sketcher::SketchObject", "Sketch012")
sketch13.AttachmentSupport = (doc.getObject("YZ_Plane008"), [""])
sketch13.MapMode = "FlatFace"
sketch13.AttachmentOffset = App.Placement(Vector(0, 0, 45), App.Rotation())
sketch13.addGeometry(Part.Circle(Vector(-10, -8, 0), Vector(0, 0, 1), 7), False)
sketch13.addConstraint(Sketcher.Constraint("Diameter", 0, Q("14 mm")))
sketch13.addConstraint(Sketcher.Constraint("DistanceY", 0, 3, -1, 1, Q("8.1 mm")))
sketch13.addConstraint(Sketcher.Constraint("DistanceX", 0, 3, -1, 1, Q("9.869 mm")))
pad9 = body9.newObject("PartDesign::Pad", "Pad008")
pad9.Profile = sketch13
pad9.Length = 48.5

# Sketch on YZ plane
sketch14 = body9.newObject("Sketcher::SketchObject", "Sketch013")
sketch14.AttachmentSupport = (doc.getObject("YZ_Plane008"), [""])
sketch14.MapMode = "FlatFace"
sketch14.AttachmentOffset = App.Placement(Vector(0, 0, 93.5), App.Rotation())
sketch14.addGeometry(Part.Circle(Vector(-9.9, -8.1, 0), Vector(0, 0, 1), 4.2), False)
sketch14.addConstraint(Sketcher.Constraint("Diameter", 0, Q("8.5 mm")))
sketch14.addConstraint(Sketcher.Constraint("DistanceY", 0, 3, -1, 1, Q("8.1 mm")))
sketch14.addConstraint(Sketcher.Constraint("DistanceX", 0, 3, -1, 1, Q("9.869 mm")))
pad10 = body9.newObject("PartDesign::Pad", "Pad009")
pad10.Profile = sketch14
pad10.Length = 1

# Sketch on YZ plane
sketch15 = body9.newObject("Sketcher::SketchObject", "Sketch014")
sketch15.AttachmentSupport = (doc.getObject("YZ_Plane008"), [""])
sketch15.MapMode = "FlatFace"
sketch15.AttachmentOffset = App.Placement(Vector(0, 0, 45), App.Rotation())
sketch15.addGeometry(Part.Circle(Vector(-9.9, -8.1, 0), Vector(0, 0, 1), 2.8), False)
sketch15.addConstraint(Sketcher.Constraint("Diameter", 0, Q("5.5 mm")))
sketch15.addConstraint(Sketcher.Constraint("DistanceY", 0, 3, -1, 1, Q("8.1 mm")))
sketch15.addConstraint(Sketcher.Constraint("DistanceX", 0, 3, -1, 1, Q("9.869 mm")))
pad11 = body9.newObject("PartDesign::Pad", "Pad010")
pad11.Profile = sketch15
pad11.Length = 1
pad11.Reversed = True
doc.recompute()

fillet2 = body9.newObject("PartDesign::Fillet", "Fillet001")
fillet2.Base = (pad11, edges_at(pad11, [(45, -9.869, -15.1), (93.5, -9.869, -15.1)]))
fillet2.Radius = 0.5
doc.recompute()

fillet3 = body9.newObject("PartDesign::Fillet", "Fillet002")
fillet3.Base = (fillet2, edges_at(fillet2, [(93.5, -9.869, -3.85), (94.5, -9.869, -3.85)]))
fillet3.Radius = 0.4
doc.recompute()

fillet4 = body9.newObject("PartDesign::Fillet", "Fillet003")
fillet4.Base = (fillet3, edges_at(fillet3, [(45, -9.869, -10.85), (44, -9.869, -10.85)]))
fillet4.Radius = 0.4
body10 = doc.addObject("PartDesign::Body", "Body009")

# Sketch on YZ plane
sketch16 = body10.newObject("Sketcher::SketchObject", "Sketch015")
sketch16.AttachmentSupport = (doc.getObject("YZ_Plane009"), [""])
sketch16.MapMode = "FlatFace"
sketch16.AttachmentOffset = App.Placement(Vector(0, 0, 44), App.Rotation())
sketch16.addGeometry(Part.Circle(Vector(-10, 8, 0), Vector(0, 0, 1), 7), False)
sketch16.addConstraint(Sketcher.Constraint("Diameter", 0, Q("14 mm")))
sketch16.addConstraint(Sketcher.Constraint("DistanceY", -1, 1, 0, 3, Q("8.1 mm")))
sketch16.addConstraint(Sketcher.Constraint("DistanceX", 0, 3, -1, 1, Q("9.869 mm")))
pad12 = body10.newObject("PartDesign::Pad", "Pad011")
pad12.Profile = sketch16
pad12.Length = 48.5

# Sketch on YZ plane
sketch17 = body10.newObject("Sketcher::SketchObject", "Sketch016")
sketch17.AttachmentSupport = (doc.getObject("YZ_Plane009"), [""])
sketch17.MapMode = "FlatFace"
sketch17.AttachmentOffset = App.Placement(Vector(0, 0, 92.5), App.Rotation())
sketch17.addGeometry(Part.Circle(Vector(-9.9, 8.1, 0), Vector(0, 0, 1), 2.8), False)
sketch17.addConstraint(Sketcher.Constraint("Diameter", 0, Q("5.5 mm")))
sketch17.addConstraint(Sketcher.Constraint("DistanceY", -1, 1, 0, 3, Q("8.1 mm")))
sketch17.addConstraint(Sketcher.Constraint("DistanceX", 0, 3, -1, 1, Q("9.869 mm")))
pad13 = body10.newObject("PartDesign::Pad", "Pad012")
pad13.Profile = sketch17
pad13.Length = 1

# Sketch on YZ plane
sketch18 = body10.newObject("Sketcher::SketchObject", "Sketch017")
sketch18.AttachmentSupport = (doc.getObject("YZ_Plane009"), [""])
sketch18.MapMode = "FlatFace"
sketch18.AttachmentOffset = App.Placement(Vector(0, 0, 44), App.Rotation())
sketch18.addGeometry(Part.Circle(Vector(-9.9, 8.1, 0), Vector(0, 0, 1), 4.2), False)
sketch18.addConstraint(Sketcher.Constraint("Diameter", 0, Q("8.5 mm")))
sketch18.addConstraint(Sketcher.Constraint("DistanceY", -1, 1, 0, 3, Q("8.1 mm")))
sketch18.addConstraint(Sketcher.Constraint("DistanceX", 0, 3, -1, 1, Q("9.869 mm")))
pad14 = body10.newObject("PartDesign::Pad", "Pad013")
pad14.Profile = sketch18
pad14.Length = 1
pad14.Reversed = True
doc.recompute()

fillet5 = body10.newObject("PartDesign::Fillet", "Fillet004")
fillet5.Base = (pad14, edges_at(pad14, [(44, -9.869, 1.1), (92.5, -9.869, 1.1)]))
fillet5.Radius = 0.5
doc.recompute()

fillet6 = body10.newObject("PartDesign::Fillet", "Fillet005")
fillet6.Base = (fillet5, edges_at(fillet5, [(92.5, -9.869, 10.85), (93.5, -9.869, 10.85)]))
fillet6.Radius = 0.4
doc.recompute()

fillet7 = body10.newObject("PartDesign::Fillet", "Fillet006")
fillet7.Base = (fillet6, edges_at(fillet6, [(44, -9.869, 3.85), (43, -9.869, 3.85)]))
fillet7.Radius = 0.4
body.Visibility = False
body2.Visibility = False
body3.Visibility = False
body4.Visibility = False
body5.Visibility = False
body6.Visibility = False
body7.Visibility = False
body8.Visibility = False
body9.Visibility = False

doc.recompute()
